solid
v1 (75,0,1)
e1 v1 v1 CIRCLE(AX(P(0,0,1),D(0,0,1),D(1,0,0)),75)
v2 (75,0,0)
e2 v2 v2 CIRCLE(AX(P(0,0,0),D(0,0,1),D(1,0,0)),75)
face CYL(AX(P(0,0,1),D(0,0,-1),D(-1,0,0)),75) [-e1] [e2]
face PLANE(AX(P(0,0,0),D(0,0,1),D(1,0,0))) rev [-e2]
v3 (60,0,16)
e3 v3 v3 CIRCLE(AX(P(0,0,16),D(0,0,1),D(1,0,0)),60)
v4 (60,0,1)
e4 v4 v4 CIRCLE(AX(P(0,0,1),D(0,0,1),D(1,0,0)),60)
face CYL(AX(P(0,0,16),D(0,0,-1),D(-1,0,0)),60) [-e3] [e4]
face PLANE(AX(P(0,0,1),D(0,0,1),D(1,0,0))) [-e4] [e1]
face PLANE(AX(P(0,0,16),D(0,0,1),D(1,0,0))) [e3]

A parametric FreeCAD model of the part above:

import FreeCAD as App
import Part
import Sketcher
Q = App.Units.Quantity

doc = App.newDocument("Part")
body = doc.addObject("PartDesign::Body", "Body")

# Sketch on XY plane
sketch1 = body.newObject("Sketcher::SketchObject", "Sketch")
sketch1.AttachmentSupport = (doc.getObject("XY_Plane"), [""])
sketch1.MapMode = "FlatFace"
sketch1.addGeometry(Part.Circle(App.Vector(0, 0, 0), App.Vector(0, 0, 1), 75), False)
sketch1.addConstraint(Sketcher.Constraint("Coincident", 0, 3, -1, 1))
sketch1.addConstraint(Sketcher.Constraint("Diameter", 0, Q("150 mm")))
pad1 = body.newObject("PartDesign::Pad", "Pad")
pad1.Profile = sketch1
pad1.Length = 1

# Sketch on XY plane
sketch2 = body.newObject("Sketcher::SketchObject", "Sketch001")
sketch2.AttachmentSupport = (doc.getObject("XY_Plane"), [""])
sketch2.MapMode = "FlatFace"
sketch2.AttachmentOffset = App.Placement(App.Vector(0, 0, 1), App.Rotation())
sketch2.addGeometry(Part.Circle(App.Vector(0, 0, 0), App.Vector(0, 0, 1), 60), False)
sketch2.addConstraint(Sketcher.Constraint("Coincident", 0, 3, -1, 1))
sketch2.addConstraint(Sketcher.Constraint("Diameter", 0, Q("120 mm")))
pad2 = body.newObject("PartDesign::Pad", "Pad001")
pad2.Profile = sketch2
pad2.Length = 15

doc.recompute()
